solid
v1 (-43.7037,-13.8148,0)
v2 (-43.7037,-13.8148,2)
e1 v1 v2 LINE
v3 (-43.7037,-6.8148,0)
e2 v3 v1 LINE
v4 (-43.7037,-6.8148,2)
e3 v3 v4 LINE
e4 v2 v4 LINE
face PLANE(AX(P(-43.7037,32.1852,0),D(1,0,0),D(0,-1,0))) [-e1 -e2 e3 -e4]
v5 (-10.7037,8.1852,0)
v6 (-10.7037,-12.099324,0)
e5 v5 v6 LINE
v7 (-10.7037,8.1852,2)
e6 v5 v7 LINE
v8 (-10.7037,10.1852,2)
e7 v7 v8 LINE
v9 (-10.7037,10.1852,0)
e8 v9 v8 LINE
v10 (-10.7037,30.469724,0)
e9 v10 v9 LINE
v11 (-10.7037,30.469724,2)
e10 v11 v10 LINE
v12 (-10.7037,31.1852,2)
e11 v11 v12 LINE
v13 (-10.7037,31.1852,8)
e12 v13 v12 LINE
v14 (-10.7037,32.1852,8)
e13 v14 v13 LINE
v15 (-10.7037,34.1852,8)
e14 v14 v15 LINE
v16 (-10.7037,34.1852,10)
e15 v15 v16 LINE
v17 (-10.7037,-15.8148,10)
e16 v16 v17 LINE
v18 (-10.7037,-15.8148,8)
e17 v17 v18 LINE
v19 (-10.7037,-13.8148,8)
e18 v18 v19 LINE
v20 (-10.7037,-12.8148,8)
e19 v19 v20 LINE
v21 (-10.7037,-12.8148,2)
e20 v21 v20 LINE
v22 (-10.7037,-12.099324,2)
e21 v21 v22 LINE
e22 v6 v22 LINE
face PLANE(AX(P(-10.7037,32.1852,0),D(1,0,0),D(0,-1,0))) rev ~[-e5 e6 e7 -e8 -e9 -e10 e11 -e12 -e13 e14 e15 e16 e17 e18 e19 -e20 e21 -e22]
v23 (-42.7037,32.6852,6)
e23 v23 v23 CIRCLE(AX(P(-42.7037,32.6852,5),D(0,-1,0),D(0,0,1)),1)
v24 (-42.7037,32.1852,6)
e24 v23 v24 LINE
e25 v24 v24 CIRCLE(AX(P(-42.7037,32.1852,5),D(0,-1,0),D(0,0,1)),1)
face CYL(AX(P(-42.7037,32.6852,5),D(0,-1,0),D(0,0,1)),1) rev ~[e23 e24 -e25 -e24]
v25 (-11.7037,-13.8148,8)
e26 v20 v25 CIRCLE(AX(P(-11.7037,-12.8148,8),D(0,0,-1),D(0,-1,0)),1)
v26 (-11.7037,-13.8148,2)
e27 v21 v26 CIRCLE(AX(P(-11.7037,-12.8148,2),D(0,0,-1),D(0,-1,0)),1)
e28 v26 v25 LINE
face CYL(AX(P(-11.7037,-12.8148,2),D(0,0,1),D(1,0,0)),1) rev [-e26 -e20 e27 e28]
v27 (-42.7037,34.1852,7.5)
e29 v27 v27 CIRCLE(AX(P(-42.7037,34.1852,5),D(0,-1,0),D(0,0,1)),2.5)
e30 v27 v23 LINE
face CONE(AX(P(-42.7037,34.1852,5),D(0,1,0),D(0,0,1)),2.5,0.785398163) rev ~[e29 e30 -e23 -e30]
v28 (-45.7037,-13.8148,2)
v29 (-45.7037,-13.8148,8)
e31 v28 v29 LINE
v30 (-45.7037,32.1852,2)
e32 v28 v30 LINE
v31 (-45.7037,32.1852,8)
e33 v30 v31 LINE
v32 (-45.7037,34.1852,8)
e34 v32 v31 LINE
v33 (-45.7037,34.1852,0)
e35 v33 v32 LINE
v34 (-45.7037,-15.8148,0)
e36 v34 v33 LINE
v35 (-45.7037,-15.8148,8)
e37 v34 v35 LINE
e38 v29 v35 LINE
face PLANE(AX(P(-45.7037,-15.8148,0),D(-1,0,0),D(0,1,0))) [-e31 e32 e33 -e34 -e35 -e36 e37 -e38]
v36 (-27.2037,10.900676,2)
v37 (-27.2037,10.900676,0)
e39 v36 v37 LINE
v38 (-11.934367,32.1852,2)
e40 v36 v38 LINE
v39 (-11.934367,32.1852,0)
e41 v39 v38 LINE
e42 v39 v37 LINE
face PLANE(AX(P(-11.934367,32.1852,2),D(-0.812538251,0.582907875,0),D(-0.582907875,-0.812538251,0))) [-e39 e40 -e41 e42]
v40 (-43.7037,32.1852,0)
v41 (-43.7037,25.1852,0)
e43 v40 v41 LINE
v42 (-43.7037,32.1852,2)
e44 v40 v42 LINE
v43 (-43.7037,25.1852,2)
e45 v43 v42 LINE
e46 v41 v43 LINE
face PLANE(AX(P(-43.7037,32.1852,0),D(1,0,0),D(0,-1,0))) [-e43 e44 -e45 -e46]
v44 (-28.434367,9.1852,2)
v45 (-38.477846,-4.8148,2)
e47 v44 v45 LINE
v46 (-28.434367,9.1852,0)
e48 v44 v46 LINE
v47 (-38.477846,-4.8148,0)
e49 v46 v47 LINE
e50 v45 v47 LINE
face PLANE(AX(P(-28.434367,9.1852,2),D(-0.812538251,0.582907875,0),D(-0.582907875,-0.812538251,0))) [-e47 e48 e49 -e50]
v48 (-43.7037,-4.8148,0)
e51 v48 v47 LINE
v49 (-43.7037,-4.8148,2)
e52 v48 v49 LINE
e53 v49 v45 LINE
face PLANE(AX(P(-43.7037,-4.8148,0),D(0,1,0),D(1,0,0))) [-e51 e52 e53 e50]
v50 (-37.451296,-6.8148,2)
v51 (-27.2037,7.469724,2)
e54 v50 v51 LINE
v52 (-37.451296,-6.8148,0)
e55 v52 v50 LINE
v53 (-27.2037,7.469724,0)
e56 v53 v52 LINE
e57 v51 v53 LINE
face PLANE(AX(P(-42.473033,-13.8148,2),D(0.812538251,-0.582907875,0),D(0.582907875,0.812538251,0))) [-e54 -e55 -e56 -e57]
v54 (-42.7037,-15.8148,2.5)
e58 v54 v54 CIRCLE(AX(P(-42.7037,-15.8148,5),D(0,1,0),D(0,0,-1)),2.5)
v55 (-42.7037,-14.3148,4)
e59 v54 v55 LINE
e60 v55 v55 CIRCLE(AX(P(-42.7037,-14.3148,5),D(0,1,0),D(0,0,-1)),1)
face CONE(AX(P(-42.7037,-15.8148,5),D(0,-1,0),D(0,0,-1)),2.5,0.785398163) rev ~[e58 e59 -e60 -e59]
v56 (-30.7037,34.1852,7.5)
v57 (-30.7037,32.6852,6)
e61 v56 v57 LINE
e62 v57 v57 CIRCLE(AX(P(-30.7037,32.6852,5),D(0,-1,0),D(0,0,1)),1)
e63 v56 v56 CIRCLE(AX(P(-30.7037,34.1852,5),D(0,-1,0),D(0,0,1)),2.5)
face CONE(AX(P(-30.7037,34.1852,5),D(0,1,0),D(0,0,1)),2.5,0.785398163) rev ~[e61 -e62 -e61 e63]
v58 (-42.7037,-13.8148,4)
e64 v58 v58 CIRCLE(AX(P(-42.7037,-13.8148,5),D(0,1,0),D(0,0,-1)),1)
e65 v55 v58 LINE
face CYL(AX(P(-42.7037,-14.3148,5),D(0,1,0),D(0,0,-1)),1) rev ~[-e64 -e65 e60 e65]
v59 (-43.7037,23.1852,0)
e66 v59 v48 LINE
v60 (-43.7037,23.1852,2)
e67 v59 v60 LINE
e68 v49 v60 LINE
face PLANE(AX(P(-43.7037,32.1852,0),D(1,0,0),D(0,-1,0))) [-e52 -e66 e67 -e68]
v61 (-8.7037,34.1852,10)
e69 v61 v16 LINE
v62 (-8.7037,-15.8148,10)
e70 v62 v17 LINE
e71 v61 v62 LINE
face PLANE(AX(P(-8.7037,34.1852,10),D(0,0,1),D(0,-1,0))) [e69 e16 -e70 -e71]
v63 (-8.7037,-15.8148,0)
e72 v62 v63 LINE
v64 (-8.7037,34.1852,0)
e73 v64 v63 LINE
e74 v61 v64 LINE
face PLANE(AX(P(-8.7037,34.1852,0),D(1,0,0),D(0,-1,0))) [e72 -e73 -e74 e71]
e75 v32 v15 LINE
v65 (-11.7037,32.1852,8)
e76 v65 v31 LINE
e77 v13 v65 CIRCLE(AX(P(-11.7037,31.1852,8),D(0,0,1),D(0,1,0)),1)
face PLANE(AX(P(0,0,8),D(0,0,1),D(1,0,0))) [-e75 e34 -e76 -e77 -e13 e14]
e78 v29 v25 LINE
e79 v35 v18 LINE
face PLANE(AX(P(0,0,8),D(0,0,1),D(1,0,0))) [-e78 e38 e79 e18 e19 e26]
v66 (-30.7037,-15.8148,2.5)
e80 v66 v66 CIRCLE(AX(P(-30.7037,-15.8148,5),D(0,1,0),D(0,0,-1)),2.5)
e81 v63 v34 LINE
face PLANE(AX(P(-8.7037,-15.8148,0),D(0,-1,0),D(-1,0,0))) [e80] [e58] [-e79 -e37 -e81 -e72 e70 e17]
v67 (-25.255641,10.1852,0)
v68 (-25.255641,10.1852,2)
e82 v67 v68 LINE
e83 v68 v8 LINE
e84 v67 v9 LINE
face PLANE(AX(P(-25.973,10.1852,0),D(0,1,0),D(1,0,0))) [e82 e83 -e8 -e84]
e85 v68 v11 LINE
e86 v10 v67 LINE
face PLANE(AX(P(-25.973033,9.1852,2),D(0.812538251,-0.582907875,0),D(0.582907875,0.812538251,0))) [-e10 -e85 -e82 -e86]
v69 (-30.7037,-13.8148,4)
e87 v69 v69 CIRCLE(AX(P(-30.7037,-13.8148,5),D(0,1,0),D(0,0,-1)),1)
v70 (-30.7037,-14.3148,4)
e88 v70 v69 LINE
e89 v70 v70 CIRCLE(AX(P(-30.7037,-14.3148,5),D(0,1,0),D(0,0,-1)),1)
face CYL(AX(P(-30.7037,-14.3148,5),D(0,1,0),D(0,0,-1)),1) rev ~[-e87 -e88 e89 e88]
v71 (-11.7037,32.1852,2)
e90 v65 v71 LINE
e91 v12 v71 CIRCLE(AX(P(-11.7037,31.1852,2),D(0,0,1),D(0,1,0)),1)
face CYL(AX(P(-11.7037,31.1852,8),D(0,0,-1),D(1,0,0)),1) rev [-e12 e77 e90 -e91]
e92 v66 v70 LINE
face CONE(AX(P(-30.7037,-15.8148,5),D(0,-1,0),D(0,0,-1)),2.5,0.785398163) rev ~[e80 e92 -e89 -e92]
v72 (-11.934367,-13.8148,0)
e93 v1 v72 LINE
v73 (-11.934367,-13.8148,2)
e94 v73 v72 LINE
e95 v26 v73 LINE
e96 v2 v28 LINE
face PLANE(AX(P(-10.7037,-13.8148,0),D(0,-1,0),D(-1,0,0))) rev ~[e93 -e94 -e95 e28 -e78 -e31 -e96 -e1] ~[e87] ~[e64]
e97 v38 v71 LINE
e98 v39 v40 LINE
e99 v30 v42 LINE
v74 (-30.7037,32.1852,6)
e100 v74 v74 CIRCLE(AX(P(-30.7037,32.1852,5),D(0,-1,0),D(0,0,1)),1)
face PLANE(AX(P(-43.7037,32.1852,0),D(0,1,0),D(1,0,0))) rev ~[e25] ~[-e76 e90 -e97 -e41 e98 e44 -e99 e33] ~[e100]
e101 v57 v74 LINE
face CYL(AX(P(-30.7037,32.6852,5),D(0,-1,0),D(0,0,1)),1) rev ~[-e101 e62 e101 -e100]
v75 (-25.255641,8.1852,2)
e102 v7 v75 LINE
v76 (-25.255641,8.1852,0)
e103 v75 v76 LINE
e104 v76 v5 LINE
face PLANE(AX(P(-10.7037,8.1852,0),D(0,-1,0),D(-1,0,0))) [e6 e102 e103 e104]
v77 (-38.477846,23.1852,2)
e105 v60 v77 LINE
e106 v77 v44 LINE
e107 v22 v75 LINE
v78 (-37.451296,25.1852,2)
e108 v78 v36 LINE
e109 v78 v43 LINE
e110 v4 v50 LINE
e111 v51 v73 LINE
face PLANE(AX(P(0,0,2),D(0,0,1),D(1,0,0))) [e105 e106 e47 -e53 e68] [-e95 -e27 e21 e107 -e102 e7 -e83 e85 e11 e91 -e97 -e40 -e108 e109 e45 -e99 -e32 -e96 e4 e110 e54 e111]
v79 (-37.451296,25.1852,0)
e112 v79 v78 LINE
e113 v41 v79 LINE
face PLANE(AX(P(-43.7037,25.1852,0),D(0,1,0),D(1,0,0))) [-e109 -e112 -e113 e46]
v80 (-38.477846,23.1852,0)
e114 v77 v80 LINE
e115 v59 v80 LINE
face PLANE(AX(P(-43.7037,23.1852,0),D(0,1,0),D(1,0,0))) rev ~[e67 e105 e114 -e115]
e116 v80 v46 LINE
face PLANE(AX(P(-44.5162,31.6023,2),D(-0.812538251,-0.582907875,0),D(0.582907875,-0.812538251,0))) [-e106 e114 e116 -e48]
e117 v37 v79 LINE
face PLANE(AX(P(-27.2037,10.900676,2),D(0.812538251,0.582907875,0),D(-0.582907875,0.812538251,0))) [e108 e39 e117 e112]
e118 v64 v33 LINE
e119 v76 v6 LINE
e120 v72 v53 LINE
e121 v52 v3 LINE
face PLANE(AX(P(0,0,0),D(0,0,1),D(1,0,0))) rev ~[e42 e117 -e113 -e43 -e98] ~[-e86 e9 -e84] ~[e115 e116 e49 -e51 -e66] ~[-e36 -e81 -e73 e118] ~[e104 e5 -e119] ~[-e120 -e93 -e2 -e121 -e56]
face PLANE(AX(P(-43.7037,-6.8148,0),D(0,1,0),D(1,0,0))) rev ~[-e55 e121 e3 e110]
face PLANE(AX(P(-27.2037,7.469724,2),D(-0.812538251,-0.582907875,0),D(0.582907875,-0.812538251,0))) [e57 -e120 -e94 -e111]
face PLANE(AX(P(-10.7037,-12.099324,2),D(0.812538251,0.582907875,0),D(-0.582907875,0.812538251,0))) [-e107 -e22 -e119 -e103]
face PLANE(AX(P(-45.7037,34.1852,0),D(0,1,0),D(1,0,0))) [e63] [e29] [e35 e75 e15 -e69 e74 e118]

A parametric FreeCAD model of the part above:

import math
import FreeCAD as App
import Part
import Sketcher
from FreeCAD import Vector
Q = App.Units.Quantity


def edges_at(feature, points):
    """Names of the edges that pass closest to the given points."""
    edges = feature.Shape.Edges
    near = lambda p: min(range(len(edges)), key=lambda i: edges[i].distToShape(Part.Vertex(*p))[0])
    return sorted({f"Edge{near(p) + 1}" for p in points})


def add_polygon(sketch, points):
    """Adds a closed chain of lines whose ends are joined by coincident constraints."""
    first, n = sketch.GeometryCount, len(points)
    for a, b in zip(points, points[1:] + points[:1]):
        sketch.addGeometry(Part.LineSegment(App.Vector(*a, 0), App.Vector(*b, 0)), False)
    for i in range(n):
        sketch.addConstraint(Sketcher.Constraint("Coincident", first + i, 2, first + (i + 1) % n, 1))

doc = App.newDocument("Part")
body = doc.addObject("PartDesign::Body", "Body")

# Sketch on XY plane
sketch1 = doc.addObject("Sketcher::SketchObject", "Sketch")
body.addObject(sketch1)
sketch1.AttachmentSupport = (doc.XY_Plane, [""])
sketch1.MapMode = "FlatFace"
add_polygon(sketch1, [(-9, 34), (-46, 34), (-46, -16), (-9, -16)])  # lines 0-3
add_polygon(sketch1, [(-44, -14), (-44, 32), (-11, 32), (-11, -14)])  # lines 4-7
sketch1.addConstraint([
    Sketcher.Constraint("Horizontal", 0),
    Sketcher.Constraint("Vertical", 1),
    Sketcher.Constraint("Horizontal", 2),
    Sketcher.Constraint("Vertical", 3),
    Sketcher.Constraint("Vertical", 4),
    Sketcher.Constraint("Horizontal", 5),
    Sketcher.Constraint("Vertical", 6),
    Sketcher.Constraint("Horizontal", 7),
    Sketcher.Constraint("DistanceX", 0, 2, 0, 1, Q("37 mm")),
    Sketcher.Constraint("DistanceY", 1, 2, 1, 1, Q("50 mm")),
    Sketcher.Constraint("DistanceX", 0, 2, 4, 2, Q("2 mm")),
    Sketcher.Constraint("DistanceY", 4, 2, 0, 2, Q("2 mm")),
    Sketcher.Constraint("DistanceX", 5, 2, 3, 2, Q("2 mm")),
    Sketcher.Constraint("DistanceY", 2, 2, 6, 2, Q("2 mm")),
    Sketcher.Constraint("DistanceX", 0, 2, -1, 1, Q("45.7037 mm")),
    Sketcher.Constraint("DistanceY", -1, 1, 0, 2, Q("34.1852 mm")),
])
pad1 = doc.addObject("PartDesign::Pad", "Pad")
body.addObject(pad1)
pad1.Profile = sketch1
pad1.Length = 2

# Sketch on XY plane
sketch2 = doc.addObject("Sketcher::SketchObject", "Sketch001")
body.addObject(sketch2)
sketch2.AttachmentSupport = (doc.XY_Plane, [""])
sketch2.MapMode = "FlatFace"
sketch2.AttachmentOffset = App.Placement(Vector(0, 0, 2), App.Rotation())
sketch2.addGeometry([
    Part.LineSegment(Vector(-27.2, 10.9, 0), Vector(-42.9, 32.8, 0)),  # 0
    Part.ArcOfCircle(Part.Circle(Vector(-43.7, 32.2, 0), Vector(0, 0, 1), 1), math.radians(36), math.radians(216)),  # 1
    Part.LineSegment(Vector(-44.5, 31.6, 0), Vector(-28.4, 9.2, 0)),  # 2
    Part.LineSegment(Vector(-28.4, 9.2, 0), Vector(-44.5, -13.2, 0)),  # 3
    Part.ArcOfCircle(Part.Circle(Vector(-43.7, -13.8, 0), Vector(0, 0, 1), 1), math.radians(144), math.radians(324)),  # 4
    Part.LineSegment(Vector(-42.9, -14.4, 0), Vector(-27.2, 7.5, 0)),  # 5
    Part.LineSegment(Vector(-27.2, 7.5, 0), Vector(-11.5, -14.4, 0)),  # 6
    Part.ArcOfCircle(Part.Circle(Vector(-10.7, -13.8, 0), Vector(0, 0, 1), 1), math.radians(-144), math.radians(36)),  # 7
    Part.LineSegment(Vector(-9.9, -13.2, 0), Vector(-26, 9.2, 0)),  # 8
    Part.LineSegment(Vector(-26, 9.2, 0), Vector(-9.9, 31.6, 0)),  # 9
    Part.ArcOfCircle(Part.Circle(Vector(-10.7, 32.2, 0), Vector(0, 0, 1), 1), math.radians(-36), math.radians(144)),  # 10
    Part.LineSegment(Vector(-11.5, 32.8, 0), Vector(-27.2, 10.9, 0)),  # 11
], False)
sketch2.addConstraint([
    Sketcher.Constraint("Tangent", 0, 2, 1, 1),
    Sketcher.Constraint("Tangent", 1, 2, 2, 1),
    Sketcher.Constraint("Coincident", 2, 2, 3, 1),
    Sketcher.Constraint("Tangent", 3, 2, 4, 1),
    Sketcher.Constraint("Tangent", 4, 2, 5, 1),
    Sketcher.Constraint("Coincident", 5, 2, 6, 1),
    Sketcher.Constraint("Tangent", 6, 2, 7, 1),
    Sketcher.Constraint("Tangent", 7, 2, 8, 1),
    Sketcher.Constraint("Coincident", 8, 2, 9, 1),
    Sketcher.Constraint("Tangent", 9, 2, 10, 1),
    Sketcher.Constraint("Tangent", 10, 2, 11, 1),
    Sketcher.Constraint("Coincident", 11, 2, 0, 1),
    Sketcher.Constraint("Equal", 1, 4),
    Sketcher.Constraint("Equal", 4, 7),
    Sketcher.Constraint("Equal", 7, 10),
    Sketcher.Constraint("Parallel", 0, 2),
    Sketcher.Constraint("Parallel", 3, 5),
    Sketcher.Constraint("Parallel", 2, 6),
    Sketcher.Constraint("Parallel", 6, 8),
    Sketcher.Constraint("Parallel", 5, 9),
    Sketcher.Constraint("Parallel", 9, 11),
    Sketcher.Constraint("Horizontal", 4, 3, 7, 3),
    Sketcher.Constraint("Horizontal", 1, 3, 10, 3),
    Sketcher.Constraint("Horizontal", 4, 2, 6, 2),
    Sketcher.Constraint("Horizontal", 2, 2, 8, 2),
    Sketcher.Constraint("Vertical", 1, 3, 4, 3),
    Sketcher.Constraint("Radius", 1, Q("1 mm")),
    Sketcher.Constraint("DistanceY", 4, 3, 1, 3, Q("46 mm")),
    Sketcher.Constraint("DistanceX", 4, 3, 7, 3, Q("33 mm")),
    Sketcher.Constraint("Distance", 2, Q("27.589 mm")),
    Sketcher.Constraint("DistanceY", -1, 1, 0, 2, Q("32.768 mm")),
    Sketcher.Constraint("DistanceX", 8, 2, -1, 1, Q("25.973 mm")),
])
pad2 = doc.addObject("PartDesign::Pad", "Pad001")
body.addObject(pad2)
pad2.Profile = sketch2
pad2.Length = 2
pad2.Reversed = True

# Sketch on XY plane
sketch3 = doc.addObject("Sketcher::SketchObject", "Sketch002")
body.addObject(sketch3)
sketch3.AttachmentSupport = (doc.XY_Plane, [""])
sketch3.MapMode = "FlatFace"
sketch3.AttachmentOffset = App.Placement(Vector(0, 0, 2), App.Rotation())
add_polygon(sketch3, [(-8.7, 34.2), (-45.7, 34.2), (-45.7, 32.2), (-8.7, 32.2)])  # lines 0-3
add_polygon(sketch3, [(-8.7, -13.8), (-45.7, -13.8), (-45.7, -15.8), (-8.7, -15.8)])  # lines 4-7
sketch3.addConstraint([
    Sketcher.Constraint("Horizontal", 0),
    Sketcher.Constraint("Vertical", 1),
    Sketcher.Constraint("Horizontal", 2),
    Sketcher.Constraint("Vertical", 3),
    Sketcher.Constraint("Horizontal", 4),
    Sketcher.Constraint("Vertical", 5),
    Sketcher.Constraint("Horizontal", 6),
    Sketcher.Constraint("Vertical", 7),
    Sketcher.Constraint("Vertical", 1, 2, 4, 2),
    Sketcher.Constraint("Vertical", 3, 2, 6, 2),
    Sketcher.Constraint("Equal", 3, 5),
    Sketcher.Constraint("DistanceX", 0, 2, 0, 1, Q("37 mm")),
    Sketcher.Constraint("DistanceY", 1, 2, 1, 1, Q("2 mm")),
    Sketcher.Constraint("DistanceY", 4, 2, 1, 2, Q("46 mm")),
    Sketcher.Constraint("DistanceX", 0, 2, -1, 1, Q("45.7037 mm")),
    Sketcher.Constraint("DistanceY", -1, 1, 0, 2, Q("34.1852 mm")),
])
pad3 = doc.addObject("PartDesign::Pad", "Pad002")
body.addObject(pad3)
pad3.Profile = sketch3
pad3.Length = 6

# Sketch on XZ plane
sketch4 = doc.addObject("Sketcher::SketchObject", "Sketch003")
body.addObject(sketch4)
sketch4.AttachmentSupport = (doc.XZ_Plane, [""])
sketch4.MapMode = "FlatFace"
sketch4.AttachmentOffset = App.Placement(Vector(0, 0, -34.1852), App.Rotation())
sketch4.addGeometry([
    Part.Circle(Vector(-42.7, 5, 0), Vector(0, 0, 1), 1),
    Part.Circle(Vector(-30.7, 5, 0), Vector(0, 0, 1), 1),
], False)
sketch4.addConstraint([
    Sketcher.Constraint("Equal", 0, 1),
    Sketcher.Constraint("Horizontal", 0, 3, 1, 3),
    Sketcher.Constraint("Diameter", 0, Q("2 mm")),
    Sketcher.Constraint("DistanceY", -1, 1, 0, 3, Q("5 mm")),
    Sketcher.Constraint("DistanceX", 0, 3, 1, 3, Q("12 mm")),
    Sketcher.Constraint("DistanceX", 0, 3, -1, 1, Q("42.7037 mm")),
])
doc.recompute()
hole = doc.addObject("PartDesign::Hole", "Hole")
body.addObject(hole)
hole.Profile = sketch4
hole.ThreadType = "None"
hole.Diameter = 2
hole.DepthType = "Dimension"
hole.Depth = 10
hole.DrillPoint = "Angled"
hole.DrillPointAngle = 118
hole.HoleCutType = "Countersink"
hole.HoleCutDiameter = 5
hole.HoleCutCountersinkAngle = 90
hole.Reversed = True

# Sketch on XZ plane
sketch5 = doc.addObject("Sketcher::SketchObject", "Sketch004")
body.addObject(sketch5)
sketch5.AttachmentSupport = (doc.XZ_Plane, [""])
sketch5.MapMode = "FlatFace"
sketch5.AttachmentOffset = App.Placement(Vector(0, 0, 15.8148), App.Rotation())
sketch5.addGeometry([
    Part.Circle(Vector(-30.7, 5, 0), Vector(0, 0, 1), 1),
    Part.Circle(Vector(-42.7, 5, 0), Vector(0, 0, 1), 1),
], False)
sketch5.addConstraint([
    Sketcher.Constraint("Equal", 0, 1),
    Sketcher.Constraint("Horizontal", 0, 3, 1, 3),
    Sketcher.Constraint("Diameter", 0, Q("2 mm")),
    Sketcher.Constraint("DistanceY", -1, 1, 0, 3, Q("5 mm")),
    Sketcher.Constraint("DistanceX", 1, 3, 0, 3, Q("12 mm")),
    Sketcher.Constraint("DistanceX", 0, 3, -1, 1, Q("30.7037 mm")),
])
doc.recompute()
hole2 = doc.addObject("PartDesign::Hole", "Hole001")
body.addObject(hole2)
hole2.Profile = sketch5
hole2.ThreadType = "None"
hole2.Diameter = 2
hole2.DepthType = "Dimension"
hole2.Depth = 10
hole2.DrillPoint = "Angled"
hole2.DrillPointAngle = 118
hole2.HoleCutType = "Countersink"
hole2.HoleCutDiameter = 5
hole2.HoleCutCountersinkAngle = 90

# Sketch on XY plane
sketch6 = doc.addObject("Sketcher::SketchObject", "Sketch005")
body.addObject(sketch6)
sketch6.AttachmentSupport = (doc.XY_Plane, [""])
sketch6.MapMode = "FlatFace"
add_polygon(sketch6, [(-18, -7), (-18, -14), (-44, -14), (-44, -7)])  # lines 0-3
add_polygon(sketch6, [(-18, 25), (-44, 25), (-44, 32), (-18, 32)])  # lines 4-7
sketch6.addConstraint([
    Sketcher.Constraint("Vertical", 0),
    Sketcher.Constraint("Horizontal", 1),
    Sketcher.Constraint("Vertical", 2),
    Sketcher.Constraint("Horizontal", 3),
    Sketcher.Constraint("Horizontal", 4),
    Sketcher.Constraint("Vertical", 5),
    Sketcher.Constraint("Horizontal", 6),
    Sketcher.Constraint("Vertical", 7),
    Sketcher.Constraint("Vertical", 2, 2, 4, 2),
    Sketcher.Constraint("Vertical", 3, 2, 6, 2),
    Sketcher.Constraint("Equal", 2, 5),
    Sketcher.Constraint("DistanceX", 1, 2, 1, 1, Q("26 mm")),
    Sketcher.Constraint("DistanceY", 0, 2, 0, 1, Q("7 mm")),
    Sketcher.Constraint("DistanceY", 2, 2, 4, 2, Q("32 mm")),
    Sketcher.Constraint("DistanceX", 0, 2, -1, 1, Q("17.7037 mm")),
    Sketcher.Constraint("DistanceY", 0, 2, -1, 1, Q("13.8148 mm")),
])
pocket1 = doc.addObject("PartDesign::Pocket", "Pocket")
body.addObject(pocket1)
pocket1.Profile = sketch6
pocket1.Length = 2
pocket1.Reversed = True

# Sketch on XY plane
sketch7 = doc.addObject("Sketcher::SketchObject", "Sketch006")
body.addObject(sketch7)
sketch7.AttachmentSupport = (doc.XY_Plane, [""])
sketch7.MapMode = "FlatFace"
add_polygon(sketch7, [(-37.5, 23.2), (-43.7, 23.2), (-43.7, 25.2), (-37.5, 25.2)])  # lines 0-3
add_polygon(sketch7, [(-37.5, -6.8), (-43.7, -6.8), (-43.7, -4.8), (-37.5, -4.8)])  # lines 4-7
sketch7.addConstraint([
    Sketcher.Constraint("Horizontal", 0),
    Sketcher.Constraint("Vertical", 1),
    Sketcher.Constraint("Horizontal", 2),
    Sketcher.Constraint("Vertical", 3),
    Sketcher.Constraint("Horizontal", 4),
    Sketcher.Constraint("Vertical", 5),
    Sketcher.Constraint("Horizontal", 6),
    Sketcher.Constraint("Vertical", 7),
    Sketcher.Constraint("Vertical", 1, 2, 4, 2),
    Sketcher.Constraint("Vertical", 3, 2, 6, 2),
    Sketcher.Constraint("Equal", 3, 5),
    Sketcher.Constraint("DistanceY", 1, 1, 1, 2, Q("2 mm")),
    Sketcher.Constraint("DistanceY", 4, 2, 0, 2, Q("30 mm")),
    Sketcher.Constraint("DistanceX", 0, 2, 0, 1, Q("6.2524 mm")),
    Sketcher.Constraint("DistanceX", 0, 2, -1, 1, Q("43.7037 mm")),
    Sketcher.Constraint("DistanceY", -1, 1, 0, 2, Q("23.1852 mm")),
])
pad4 = doc.addObject("PartDesign::Pad", "Pad003")
body.addObject(pad4)
pad4.Profile = sketch7
pad4.Length = 2

# Sketch on XY plane
sketch8 = doc.addObject("Sketcher::SketchObject", "Sketch007")
body.addObject(sketch8)
sketch8.AttachmentSupport = (doc.XY_Plane, [""])
sketch8.MapMode = "FlatFace"
sketch8.addGeometry([
    Part.LineSegment(Vector(-10.7, 8.2, 0), Vector(-26, 8.2, 0)),
    Part.ArcOfCircle(Part.Circle(Vector(-26, 9.2, 0), Vector(0, 0, 1), 1), math.radians(90), math.radians(270)),
    Part.LineSegment(Vector(-26, 10.2, 0), Vector(-10.7, 10.2, 0)),
    Part.ArcOfCircle(Part.Circle(Vector(-10.7, 9.2, 0), Vector(0, 0, 1), 1), math.radians(-90), math.radians(90)),
], False)
sketch8.addConstraint([
    Sketcher.Constraint("Tangent", 0, 2, 1, 2),
    Sketcher.Constraint("Tangent", 1, 1, 2, 1),
    Sketcher.Constraint("Tangent", 2, 2, 3, 2),
    Sketcher.Constraint("Tangent", 3, 1, 0, 1),
    Sketcher.Constraint("Horizontal", 0),
    Sketcher.Constraint("Horizontal", 2),
    Sketcher.Constraint("Radius", 1, Q("1 mm")),
    Sketcher.Constraint("DistanceX", 0, 2, 0, 1, Q("15.2693 mm")),
    Sketcher.Constraint("DistanceX", 1, 3, -1, 1, Q("25.973 mm")),
    Sketcher.Constraint("DistanceY", -1, 1, 1, 3, Q("9.1852 mm")),
])
pad5 = doc.addObject("PartDesign::Pad", "Pad004")
body.addObject(pad5)
pad5.Profile = sketch8
pad5.Length = 2

# Sketch on YZ plane
sketch9 = doc.addObject("Sketcher::SketchObject", "Sketch008")
body.addObject(sketch9)
sketch9.AttachmentSupport = (doc.YZ_Plane, [""])
sketch9.MapMode = "FlatFace"
sketch9.AttachmentOffset = App.Placement(Vector(0, 0, -8.7037), App.Rotation())
add_polygon(sketch9, [(-16, 0), (34, 0), (34, 10), (-16, 10)])  # lines 0-3
sketch9.addConstraint([
    Sketcher.Constraint("Horizontal", 0),
    Sketcher.Constraint("Vertical", 1),
    Sketcher.Constraint("Horizontal", 2),
    Sketcher.Constraint("Vertical", 3),
    Sketcher.Constraint("PointOnObject", 0, 2, -1),
    Sketcher.Constraint("DistanceY", 1, 1, 1, 2, Q("10 mm")),
    Sketcher.Constraint("DistanceX", 0, 1, 0, 2, Q("50 mm")),
    Sketcher.Constraint("DistanceX", -1, 1, 0, 2, Q("34.1852 mm")),
])
pad6 = doc.addObject("PartDesign::Pad", "Pad005")
body.addObject(pad6)
pad6.Profile = sketch9
pad6.Length = 2
pad6.Reversed = True
doc.recompute()

fillet = doc.addObject("PartDesign::Fillet", "Fillet")
body.addObject(fillet)
fillet.Base = (pad6, edges_at(pad6, [(-10.704, 32.185, 5), (-10.704, -13.815, 5)]))
fillet.Radius = 1

doc.recompute()
